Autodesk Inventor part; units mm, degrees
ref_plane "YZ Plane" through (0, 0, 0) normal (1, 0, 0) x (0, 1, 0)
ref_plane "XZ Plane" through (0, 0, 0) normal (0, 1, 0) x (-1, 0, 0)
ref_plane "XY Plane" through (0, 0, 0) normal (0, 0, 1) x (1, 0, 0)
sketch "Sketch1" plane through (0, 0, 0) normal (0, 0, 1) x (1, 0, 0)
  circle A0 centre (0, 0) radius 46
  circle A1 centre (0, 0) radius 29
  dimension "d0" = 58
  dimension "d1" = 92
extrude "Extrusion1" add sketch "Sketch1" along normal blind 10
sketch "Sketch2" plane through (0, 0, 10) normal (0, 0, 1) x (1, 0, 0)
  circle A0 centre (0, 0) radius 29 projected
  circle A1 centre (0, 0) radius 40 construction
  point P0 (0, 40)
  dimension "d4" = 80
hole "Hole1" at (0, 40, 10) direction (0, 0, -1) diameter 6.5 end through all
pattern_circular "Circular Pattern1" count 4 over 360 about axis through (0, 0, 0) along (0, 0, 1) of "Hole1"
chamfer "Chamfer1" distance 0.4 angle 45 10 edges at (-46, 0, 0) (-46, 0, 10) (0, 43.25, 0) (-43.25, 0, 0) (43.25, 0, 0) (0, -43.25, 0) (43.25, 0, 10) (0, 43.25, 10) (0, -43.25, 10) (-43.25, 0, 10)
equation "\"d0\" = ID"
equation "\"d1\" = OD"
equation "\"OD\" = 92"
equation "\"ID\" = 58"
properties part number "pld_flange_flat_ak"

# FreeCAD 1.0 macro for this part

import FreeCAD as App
import Part
import Sketcher

V = App.Vector


def edges_at(feature, points):
    """Names of the edges that pass closest to the given points."""
    edges = feature.Shape.Edges
    near = lambda p: min(range(len(edges)), key=lambda i: edges[i].distToShape(Part.Vertex(*p))[0])
    return sorted({f"Edge{near(p) + 1}" for p in points})

doc = App.newDocument("Part")
body = doc.addObject("PartDesign::Body", "Body")

sketch1 = doc.addObject("Sketcher::SketchObject", "Sketch")
body.addObject(sketch1)
sketch1.AttachmentSupport = (doc.XY_Plane, [""])
sketch1.MapMode = "FlatFace"
sketch1.addGeometry([
    Part.Circle(V(0, 0, 0), V(0, 0, 1), 46),
    Part.Circle(V(0, 0, 0), V(0, 0, 1), 29),
], False)
sketch1.addConstraint([
    Sketcher.Constraint("Coincident", 0, 3, -1, 1),
    Sketcher.Constraint("Coincident", 1, 3, -1, 1),
    Sketcher.Constraint("Diameter", 0, 92.0),
    Sketcher.Constraint("Diameter", 1, 58.0),
])
pad1 = doc.addObject("PartDesign::Pad", "Pad")
body.addObject(pad1)
pad1.Profile = sketch1
pad1.Length = 10

sketch2 = doc.addObject("Sketcher::SketchObject", "Sketch001")
body.addObject(sketch2)
sketch2.AttachmentSupport = (doc.XY_Plane, [""])
sketch2.MapMode = "FlatFace"
sketch2.AttachmentOffset = App.Placement(V(0, 0, 10), App.Rotation())
sketch2.addGeometry(Part.Circle(V(0, 40, 0), V(0, 0, 1), 3.2), False)
sketch2.addConstraint([
    Sketcher.Constraint("PointOnObject", 0, 3, -2),
    Sketcher.Constraint("Diameter", 0, 6.5),
    Sketcher.Constraint("DistanceY", -1, 1, 0, 3, 40.0),
])
doc.recompute()
hole = doc.addObject("PartDesign::Hole", "Hole")
body.addObject(hole)
hole.Profile = sketch2
hole.ThreadType = "None"
hole.Diameter = 6.5
hole.DepthType = "ThroughAll"
doc.recompute()

polarpattern = doc.addObject("PartDesign::PolarPattern", "PolarPattern")
body.addObject(polarpattern)
polarpattern.Originals = [hole]
polarpattern.Axis = (doc.Z_Axis, [""])
polarpattern.Angle = 360
polarpattern.Occurrences = 4
body.Tip = polarpattern
doc.recompute()

chamfer = doc.addObject("PartDesign::Chamfer", "Chamfer")
body.addObject(chamfer)
chamfer.Base = (polarpattern, edges_at(polarpattern, [
    (-46, 0, 0),
    (-46, 0, 10),
    (0, 43.25, 0),
    (-43.25, 0, 0),
    (43.25, 0, 0),
    (0, -43.25, 0),
    (43.25, 0, 10),
    (0, 43.25, 10),
    (0, -43.25, 10),
    (-43.25, 0, 10),
]))
chamfer.Size = 0.4

doc.recompute()
